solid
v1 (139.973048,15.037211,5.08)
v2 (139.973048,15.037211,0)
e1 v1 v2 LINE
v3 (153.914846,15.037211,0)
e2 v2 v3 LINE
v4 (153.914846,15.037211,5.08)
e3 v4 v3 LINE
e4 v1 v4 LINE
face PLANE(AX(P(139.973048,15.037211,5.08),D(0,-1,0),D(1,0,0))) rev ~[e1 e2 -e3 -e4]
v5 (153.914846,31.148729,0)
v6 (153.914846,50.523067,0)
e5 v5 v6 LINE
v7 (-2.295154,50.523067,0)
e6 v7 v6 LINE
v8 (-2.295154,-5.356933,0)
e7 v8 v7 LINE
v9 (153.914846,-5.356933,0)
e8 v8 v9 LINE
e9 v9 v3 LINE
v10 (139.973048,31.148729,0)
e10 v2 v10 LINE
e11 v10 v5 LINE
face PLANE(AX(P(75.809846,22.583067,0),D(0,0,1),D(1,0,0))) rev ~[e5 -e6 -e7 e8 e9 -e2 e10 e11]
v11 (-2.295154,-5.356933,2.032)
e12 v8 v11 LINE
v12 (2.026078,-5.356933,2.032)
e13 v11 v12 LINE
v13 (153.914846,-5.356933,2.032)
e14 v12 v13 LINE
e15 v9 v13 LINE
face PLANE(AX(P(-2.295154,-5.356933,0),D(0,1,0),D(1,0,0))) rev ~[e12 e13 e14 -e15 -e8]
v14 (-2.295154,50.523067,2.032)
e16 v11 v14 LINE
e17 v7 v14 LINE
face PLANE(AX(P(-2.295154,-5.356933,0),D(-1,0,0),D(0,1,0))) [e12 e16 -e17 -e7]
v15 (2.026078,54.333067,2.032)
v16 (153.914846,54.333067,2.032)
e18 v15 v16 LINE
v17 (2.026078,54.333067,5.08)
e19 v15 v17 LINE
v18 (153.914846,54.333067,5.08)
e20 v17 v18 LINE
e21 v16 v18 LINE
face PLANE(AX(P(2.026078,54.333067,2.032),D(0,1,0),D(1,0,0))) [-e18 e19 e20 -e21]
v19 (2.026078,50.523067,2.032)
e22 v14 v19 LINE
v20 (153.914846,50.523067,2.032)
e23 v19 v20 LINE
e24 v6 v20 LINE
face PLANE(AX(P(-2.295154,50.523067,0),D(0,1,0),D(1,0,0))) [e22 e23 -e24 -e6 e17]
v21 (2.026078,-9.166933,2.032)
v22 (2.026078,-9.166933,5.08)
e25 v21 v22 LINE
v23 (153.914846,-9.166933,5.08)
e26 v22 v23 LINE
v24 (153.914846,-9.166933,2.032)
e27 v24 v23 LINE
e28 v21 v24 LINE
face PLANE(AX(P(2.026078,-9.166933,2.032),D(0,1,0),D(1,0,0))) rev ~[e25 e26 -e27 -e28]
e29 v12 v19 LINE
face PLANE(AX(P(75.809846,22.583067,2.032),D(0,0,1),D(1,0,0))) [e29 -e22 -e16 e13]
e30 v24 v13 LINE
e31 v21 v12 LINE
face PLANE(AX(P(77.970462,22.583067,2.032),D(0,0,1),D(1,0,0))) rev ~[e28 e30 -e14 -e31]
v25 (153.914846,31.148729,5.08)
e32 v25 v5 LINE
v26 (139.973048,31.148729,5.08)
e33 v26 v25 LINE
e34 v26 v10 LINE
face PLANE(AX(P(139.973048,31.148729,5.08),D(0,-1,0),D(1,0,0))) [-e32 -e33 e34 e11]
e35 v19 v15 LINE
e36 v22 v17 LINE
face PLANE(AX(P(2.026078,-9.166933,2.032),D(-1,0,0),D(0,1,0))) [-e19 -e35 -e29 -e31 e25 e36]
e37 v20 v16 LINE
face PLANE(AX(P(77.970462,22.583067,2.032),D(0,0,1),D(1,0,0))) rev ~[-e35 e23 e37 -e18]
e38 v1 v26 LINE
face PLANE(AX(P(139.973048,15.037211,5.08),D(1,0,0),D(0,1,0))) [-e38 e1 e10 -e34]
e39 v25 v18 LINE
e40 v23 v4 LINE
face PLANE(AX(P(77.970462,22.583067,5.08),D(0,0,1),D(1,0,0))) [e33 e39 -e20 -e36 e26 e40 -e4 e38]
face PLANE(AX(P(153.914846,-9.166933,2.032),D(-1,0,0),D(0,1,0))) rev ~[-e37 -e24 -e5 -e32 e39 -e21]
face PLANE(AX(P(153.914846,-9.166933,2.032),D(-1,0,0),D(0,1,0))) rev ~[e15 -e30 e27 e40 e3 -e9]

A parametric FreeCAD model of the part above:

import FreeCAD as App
import Part
import Sketcher

V = App.Vector
Q = App.Units.Quantity

doc = App.newDocument("Part")
body = doc.addObject("PartDesign::Body", "Body")

# Sketch on XY plane
sketch1 = body.newObject("Sketcher::SketchObject", "Sketch")
sketch1.AttachmentSupport = (doc.getObject("XY_Plane"), [""])
sketch1.MapMode = "FlatFace"
sketch1.addGeometry([
    Part.LineSegment(V(-2, 51, 0), V(-2, -5, 0)),
    Part.LineSegment(V(-2, -5, 0), V(154, -5, 0)),
    Part.LineSegment(V(154, -5, 0), V(154, 51, 0)),
    Part.LineSegment(V(154, 51, 0), V(-2, 51, 0)),
], False)
sketch1.addConstraint([
    Sketcher.Constraint("Coincident", 0, 2, 1, 1),
    Sketcher.Constraint("Coincident", 1, 2, 2, 1),
    Sketcher.Constraint("Coincident", 2, 2, 3, 1),
    Sketcher.Constraint("Coincident", 3, 2, 0, 1),
    Sketcher.Constraint("Vertical", 0),
    Sketcher.Constraint("Horizontal", 1),
    Sketcher.Constraint("Vertical", 2),
    Sketcher.Constraint("Horizontal", 3),
    Sketcher.Constraint("DistanceY", 0, 2, 0, 1, Q("2.2 in")),
    Sketcher.Constraint("DistanceX", 1, 1, 1, 2, Q("6.15 in")),
    Sketcher.Constraint("DistanceX", 0, 2, -1, 1, Q("2.295154 mm")),
    Sketcher.Constraint("DistanceY", 0, 2, -1, 1, Q("5.356933 mm")),
])
pad1 = body.newObject("PartDesign::Pad", "Pad")
pad1.Profile = sketch1
pad1.Length = Q("0.08 in")

# Sketch on XY plane
sketch2 = body.newObject("Sketcher::SketchObject", "Sketch001")
sketch2.AttachmentSupport = (doc.getObject("XY_Plane"), [""])
sketch2.MapMode = "FlatFace"
sketch2.AttachmentOffset = App.Placement(V(0, 0, 0.08 * 25.4), App.Rotation())
sketch2.addGeometry([
    Part.LineSegment(V(2, 54, 0), V(2, -9, 0)),
    Part.LineSegment(V(2, -9, 0), V(154, -9, 0)),
    Part.LineSegment(V(154, -9, 0), V(154, 54, 0)),
    Part.LineSegment(V(154, 54, 0), V(2, 54, 0)),
], False)
sketch2.addConstraint([
    Sketcher.Constraint("Coincident", 0, 2, 1, 1),
    Sketcher.Constraint("Coincident", 1, 2, 2, 1),
    Sketcher.Constraint("Coincident", 2, 2, 3, 1),
    Sketcher.Constraint("Coincident", 3, 2, 0, 1),
    Sketcher.Constraint("Vertical", 0),
    Sketcher.Constraint("Horizontal", 1),
    Sketcher.Constraint("Vertical", 2),
    Sketcher.Constraint("Horizontal", 3),
    Sketcher.Constraint("DistanceY", 0, 2, 0, 1, Q("2.5 in")),
    Sketcher.Constraint("DistanceX", 1, 1, 1, 2, Q("151.888768 mm")),
    Sketcher.Constraint("DistanceX", -1, 1, 0, 2, Q("2.026078 mm")),
    Sketcher.Constraint("DistanceY", 0, 2, -1, 1, Q("9.166933 mm")),
])
pad2 = body.newObject("PartDesign::Pad", "Pad001")
pad2.Profile = sketch2
pad2.Length = Q("0.12 in")

# Sketch on XY plane
sketch3 = body.newObject("Sketcher::SketchObject", "Sketch002")
sketch3.AttachmentSupport = (doc.getObject("XY_Plane"), [""])
sketch3.MapMode = "FlatFace"
sketch3.AttachmentOffset = App.Placement(V(0, 0, 0.2 * 25.4), App.Rotation())
sketch3.addGeometry([
    Part.LineSegment(V(140, 31, 0), V(140, 15, 0)),
    Part.LineSegment(V(140, 15, 0), V(154, 15, 0)),
    Part.LineSegment(V(154, 15, 0), V(154, 31, 0)),
    Part.LineSegment(V(154, 31, 0), V(140, 31, 0)),
], False)
sketch3.addConstraint([
    Sketcher.Constraint("Coincident", 0, 2, 1, 1),
    Sketcher.Constraint("Coincident", 1, 2, 2, 1),
    Sketcher.Constraint("Coincident", 2, 2, 3, 1),
    Sketcher.Constraint("Coincident", 3, 2, 0, 1),
    Sketcher.Constraint("Vertical", 0),
    Sketcher.Constraint("Horizontal", 1),
    Sketcher.Constraint("Vertical", 2),
    Sketcher.Constraint("Horizontal", 3),
    Sketcher.Constraint("DistanceX", 1, 1, 1, 2, Q("13.941798 mm")),
    Sketcher.Constraint("DistanceY", 0, 2, 0, 1, Q("16.111518 mm")),
    Sketcher.Constraint("DistanceX", -1, 1, 0, 2, Q("139.973048 mm")),
    Sketcher.Constraint("DistanceY", -1, 1, 0, 2, Q("15.037211 mm")),
])
pocket1 = body.newObject("PartDesign::Pocket", "Pocket")
pocket1.Profile = sketch3
pocket1.Type = "ThroughAll"

doc.recompute()
